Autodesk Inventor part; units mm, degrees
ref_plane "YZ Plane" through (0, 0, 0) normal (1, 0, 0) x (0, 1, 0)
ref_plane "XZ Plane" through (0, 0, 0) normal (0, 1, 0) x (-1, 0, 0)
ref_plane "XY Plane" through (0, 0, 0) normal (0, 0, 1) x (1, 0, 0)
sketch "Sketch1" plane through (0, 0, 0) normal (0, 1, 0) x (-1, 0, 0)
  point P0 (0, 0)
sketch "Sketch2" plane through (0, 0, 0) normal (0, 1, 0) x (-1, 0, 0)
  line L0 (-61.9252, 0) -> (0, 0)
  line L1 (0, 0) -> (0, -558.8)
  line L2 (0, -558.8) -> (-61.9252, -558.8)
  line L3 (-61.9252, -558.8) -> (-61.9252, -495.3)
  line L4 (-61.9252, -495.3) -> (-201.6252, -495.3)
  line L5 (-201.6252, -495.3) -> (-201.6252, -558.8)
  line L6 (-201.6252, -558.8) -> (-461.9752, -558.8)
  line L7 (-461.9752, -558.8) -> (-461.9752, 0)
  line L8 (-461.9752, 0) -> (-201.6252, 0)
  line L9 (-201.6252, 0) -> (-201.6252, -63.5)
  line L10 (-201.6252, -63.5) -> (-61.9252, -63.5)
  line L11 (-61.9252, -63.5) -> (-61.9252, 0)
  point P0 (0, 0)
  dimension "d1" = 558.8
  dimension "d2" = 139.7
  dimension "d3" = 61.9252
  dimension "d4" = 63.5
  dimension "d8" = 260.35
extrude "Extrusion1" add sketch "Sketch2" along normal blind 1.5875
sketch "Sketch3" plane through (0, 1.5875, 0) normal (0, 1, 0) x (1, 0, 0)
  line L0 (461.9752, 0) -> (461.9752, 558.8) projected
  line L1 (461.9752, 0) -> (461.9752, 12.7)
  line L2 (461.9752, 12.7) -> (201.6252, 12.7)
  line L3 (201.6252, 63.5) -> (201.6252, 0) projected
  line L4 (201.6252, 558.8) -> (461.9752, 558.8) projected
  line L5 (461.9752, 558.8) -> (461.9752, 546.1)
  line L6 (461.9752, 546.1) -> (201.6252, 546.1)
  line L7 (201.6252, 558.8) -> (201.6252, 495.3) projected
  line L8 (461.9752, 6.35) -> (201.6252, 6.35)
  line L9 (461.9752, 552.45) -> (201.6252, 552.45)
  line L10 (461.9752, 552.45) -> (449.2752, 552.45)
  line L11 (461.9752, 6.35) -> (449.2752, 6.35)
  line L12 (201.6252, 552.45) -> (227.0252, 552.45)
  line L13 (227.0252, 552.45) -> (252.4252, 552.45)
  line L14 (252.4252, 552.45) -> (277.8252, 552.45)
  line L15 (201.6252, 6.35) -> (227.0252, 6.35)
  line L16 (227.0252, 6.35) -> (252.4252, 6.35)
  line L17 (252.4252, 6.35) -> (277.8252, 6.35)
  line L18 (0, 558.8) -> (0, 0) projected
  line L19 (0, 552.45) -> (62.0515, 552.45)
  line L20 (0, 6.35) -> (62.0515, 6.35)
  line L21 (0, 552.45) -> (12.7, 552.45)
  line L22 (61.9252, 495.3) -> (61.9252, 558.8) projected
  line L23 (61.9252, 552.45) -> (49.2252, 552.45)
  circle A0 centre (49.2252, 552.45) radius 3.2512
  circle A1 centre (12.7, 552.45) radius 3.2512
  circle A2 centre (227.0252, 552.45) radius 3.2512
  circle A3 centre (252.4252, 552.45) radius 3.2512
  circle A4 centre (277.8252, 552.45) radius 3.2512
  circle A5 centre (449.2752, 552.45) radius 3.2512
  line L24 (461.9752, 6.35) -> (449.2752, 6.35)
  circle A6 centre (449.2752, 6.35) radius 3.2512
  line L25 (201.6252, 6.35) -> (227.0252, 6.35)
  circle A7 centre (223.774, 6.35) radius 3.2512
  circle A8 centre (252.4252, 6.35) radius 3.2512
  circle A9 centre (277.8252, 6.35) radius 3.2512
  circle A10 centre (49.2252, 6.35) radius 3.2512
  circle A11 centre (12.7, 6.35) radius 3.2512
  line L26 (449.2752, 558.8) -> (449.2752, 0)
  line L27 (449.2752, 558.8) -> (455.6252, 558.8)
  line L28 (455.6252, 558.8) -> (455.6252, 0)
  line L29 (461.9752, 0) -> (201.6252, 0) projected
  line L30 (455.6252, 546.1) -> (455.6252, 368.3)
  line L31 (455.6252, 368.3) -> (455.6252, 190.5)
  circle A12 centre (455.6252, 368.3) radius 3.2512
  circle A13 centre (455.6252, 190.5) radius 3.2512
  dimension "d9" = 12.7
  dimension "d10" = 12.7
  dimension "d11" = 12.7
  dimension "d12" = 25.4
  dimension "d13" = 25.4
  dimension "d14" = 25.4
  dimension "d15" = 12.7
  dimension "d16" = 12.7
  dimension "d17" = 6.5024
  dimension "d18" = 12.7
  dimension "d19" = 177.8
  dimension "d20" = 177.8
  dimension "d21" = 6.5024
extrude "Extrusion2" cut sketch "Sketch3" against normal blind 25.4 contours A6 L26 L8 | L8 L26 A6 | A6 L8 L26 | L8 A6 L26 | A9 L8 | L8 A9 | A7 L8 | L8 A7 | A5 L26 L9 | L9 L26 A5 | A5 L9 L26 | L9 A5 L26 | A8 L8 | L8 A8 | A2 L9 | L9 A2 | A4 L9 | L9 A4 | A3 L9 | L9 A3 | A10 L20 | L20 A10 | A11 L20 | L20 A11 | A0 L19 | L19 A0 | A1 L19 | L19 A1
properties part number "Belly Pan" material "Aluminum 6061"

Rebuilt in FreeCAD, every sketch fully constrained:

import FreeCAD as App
import Part
import Sketcher
Q = App.Units.Quantity

doc = App.newDocument("Part")
body = doc.addObject("PartDesign::Body", "Body")

# Sketch on XZ plane
sketch1 = body.newObject("Sketcher::SketchObject", "Sketch")
sketch1.AttachmentSupport = (doc.getObject("XZ_Plane"), [""])
sketch1.MapMode = "FlatFace"
sketch1.addGeometry(Part.LineSegment(App.Vector(0, 0, 0), App.Vector(61.9252, 0, 0)), False)
sketch1.addGeometry(Part.LineSegment(App.Vector(61.9252, 0, 0), App.Vector(61.9252, -63.5, 0)), False)
sketch1.addGeometry(Part.LineSegment(App.Vector(61.9252, -63.5, 0), App.Vector(201.6252, -63.5, 0)), False)
sketch1.addGeometry(Part.LineSegment(App.Vector(201.6252, -63.5, 0), App.Vector(201.6252, 0, 0)), False)
sketch1.addGeometry(Part.LineSegment(App.Vector(201.6252, 0, 0), App.Vector(461.9752, 0, 0)), False)
sketch1.addGeometry(Part.LineSegment(App.Vector(461.9752, 0, 0), App.Vector(461.9752, -558.8, 0)), False)
sketch1.addGeometry(Part.LineSegment(App.Vector(461.9752, -558.8, 0), App.Vector(201.6252, -558.8, 0)), False)
sketch1.addGeometry(Part.LineSegment(App.Vector(201.6252, -558.8, 0), App.Vector(201.6252, -495.3, 0)), False)
sketch1.addGeometry(Part.LineSegment(App.Vector(201.6252, -495.3, 0), App.Vector(61.9252, -495.3, 0)), False)
sketch1.addGeometry(Part.LineSegment(App.Vector(61.9252, -495.3, 0), App.Vector(61.9252, -558.8, 0)), False)
sketch1.addGeometry(Part.LineSegment(App.Vector(61.9252, -558.8, 0), App.Vector(0, -558.8, 0)), False)
sketch1.addGeometry(Part.LineSegment(App.Vector(0, -558.8, 0), App.Vector(0, 0, 0)), False)
sketch1.addConstraint(Sketcher.Constraint("Coincident", 0, 2, 1, 1))
sketch1.addConstraint(Sketcher.Constraint("Coincident", 1, 2, 2, 1))
sketch1.addConstraint(Sketcher.Constraint("Coincident", 2, 2, 3, 1))
sketch1.addConstraint(Sketcher.Constraint("Coincident", 3, 2, 4, 1))
sketch1.addConstraint(Sketcher.Constraint("Coincident", 4, 2, 5, 1))
sketch1.addConstraint(Sketcher.Constraint("Coincident", 5, 2, 6, 1))
sketch1.addConstraint(Sketcher.Constraint("Coincident", 6, 2, 7, 1))
sketch1.addConstraint(Sketcher.Constraint("Coincident", 7, 2, 8, 1))
sketch1.addConstraint(Sketcher.Constraint("Coincident", 8, 2, 9, 1))
sketch1.addConstraint(Sketcher.Constraint("Coincident", 9, 2, 10, 1))
sketch1.addConstraint(Sketcher.Constraint("Coincident", 10, 2, 11, 1))
sketch1.addConstraint(Sketcher.Constraint("Coincident", 11, 2, 0, 1))
sketch1.addConstraint(Sketcher.Constraint("Horizontal", 0))
sketch1.addConstraint(Sketcher.Constraint("Vertical", 1))
sketch1.addConstraint(Sketcher.Constraint("Horizontal", 2))
sketch1.addConstraint(Sketcher.Constraint("Vertical", 3))
sketch1.addConstraint(Sketcher.Constraint("Horizontal", 4))
sketch1.addConstraint(Sketcher.Constraint("Vertical", 5))
sketch1.addConstraint(Sketcher.Constraint("Horizontal", 6))
sketch1.addConstraint(Sketcher.Constraint("Vertical", 7))
sketch1.addConstraint(Sketcher.Constraint("Horizontal", 8))
sketch1.addConstraint(Sketcher.Constraint("Vertical", 9))
sketch1.addConstraint(Sketcher.Constraint("Horizontal", 10))
sketch1.addConstraint(Sketcher.Constraint("Vertical", 11))
sketch1.addConstraint(Sketcher.Constraint("Coincident", 11, 2, -1, 1))
sketch1.addConstraint(Sketcher.Constraint("PointOnObject", 3, 2, -1))
sketch1.addConstraint(Sketcher.Constraint("Horizontal", 6, 2, 9, 2))
sketch1.addConstraint(Sketcher.Constraint("Vertical", 3, 2, 6, 2))
sketch1.addConstraint(Sketcher.Constraint("Vertical", 1, 2, 8, 2))
sketch1.addConstraint(Sketcher.Constraint("Equal", 3, 7))
sketch1.addConstraint(Sketcher.Constraint("DistanceY", 5, 2, 5, 1, Q("22 in")))
sketch1.addConstraint(Sketcher.Constraint("DistanceX", 2, 1, 2, 2, Q("5.5 in")))
sketch1.addConstraint(Sketcher.Constraint("DistanceY", 1, 2, 1, 1, Q("2.5 in")))
sketch1.addConstraint(Sketcher.Constraint("DistanceX", 4, 1, 4, 2, Q("10.25 in")))
sketch1.addConstraint(Sketcher.Constraint("DistanceX", 0, 1, 0, 2, Q("2.438 in")))
pad1 = body.newObject("PartDesign::Pad", "Pad")
pad1.Profile = sketch1
pad1.Length = Q("0.0625 in")
pad1.Reversed = True

# Sketch on XZ plane
sketch2 = body.newObject("Sketcher::SketchObject", "Sketch001")
sketch2.AttachmentSupport = (doc.getObject("XZ_Plane"), [""])
sketch2.MapMode = "FlatFace"
sketch2.AttachmentOffset = App.Placement(App.Vector(0, 0, -0.0625 * 25.4), App.Rotation())
sketch2.addGeometry(Part.Circle(App.Vector(449.2752, -6.35, 0), App.Vector(0, 0, 1), 3.2512), False)
sketch2.addGeometry(Part.Circle(App.Vector(277.8252, -6.35, 0), App.Vector(0, 0, 1), 3.2512), False)
sketch2.addGeometry(Part.Circle(App.Vector(223.774, -6.35, 0), App.Vector(0, 0, 1), 3.2512), False)
sketch2.addGeometry(Part.Circle(App.Vector(449.2752, -552.45, 0), App.Vector(0, 0, 1), 3.2512), False)
sketch2.addGeometry(Part.Circle(App.Vector(252.4252, -6.35, 0), App.Vector(0, 0, 1), 3.2512), False)
sketch2.addGeometry(Part.Circle(App.Vector(227.0252, -552.45, 0), App.Vector(0, 0, 1), 3.2512), False)
sketch2.addGeometry(Part.Circle(App.Vector(277.8252, -552.45, 0), App.Vector(0, 0, 1), 3.2512), False)
sketch2.addGeometry(Part.Circle(App.Vector(252.4252, -552.45, 0), App.Vector(0, 0, 1), 3.2512), False)
sketch2.addGeometry(Part.Circle(App.Vector(49.2252, -6.35, 0), App.Vector(0, 0, 1), 3.2512), False)
sketch2.addGeometry(Part.Circle(App.Vector(12.7, -6.35, 0), App.Vector(0, 0, 1), 3.2512), False)
sketch2.addGeometry(Part.Circle(App.Vector(49.2252, -552.45, 0), App.Vector(0, 0, 1), 3.2512), False)
sketch2.addGeometry(Part.Circle(App.Vector(12.7, -552.45, 0), App.Vector(0, 0, 1), 3.2512), False)
sketch2.addConstraint(Sketcher.Constraint("Equal", 0, 1))
sketch2.addConstraint(Sketcher.Constraint("Equal", 1, 2))
sketch2.addConstraint(Sketcher.Constraint("Equal", 2, 3))
sketch2.addConstraint(Sketcher.Constraint("Equal", 3, 4))
sketch2.addConstraint(Sketcher.Constraint("Equal", 4, 5))
sketch2.addConstraint(Sketcher.Constraint("Equal", 5, 6))
sketch2.addConstraint(Sketcher.Constraint("Equal", 6, 7))
sketch2.addConstraint(Sketcher.Constraint("Equal", 7, 8))
sketch2.addConstraint(Sketcher.Constraint("Equal", 8, 9))
sketch2.addConstraint(Sketcher.Constraint("Equal", 9, 10))
sketch2.addConstraint(Sketcher.Constraint("Equal", 10, 11))
sketch2.addConstraint(Sketcher.Constraint("Horizontal", 0, 3, 1, 3))
sketch2.addConstraint(Sketcher.Constraint("Horizontal", 1, 3, 2, 3))
sketch2.addConstraint(Sketcher.Constraint("Horizontal", 2, 3, 4, 3))
sketch2.addConstraint(Sketcher.Constraint("Horizontal", 3, 3, 5, 3))
sketch2.addConstraint(Sketcher.Constraint("Horizontal", 5, 3, 6, 3))
sketch2.addConstraint(Sketcher.Constraint("Horizontal", 6, 3, 7, 3))
sketch2.addConstraint(Sketcher.Constraint("Horizontal", 4, 3, 8, 3))
sketch2.addConstraint(Sketcher.Constraint("Horizontal", 8, 3, 9, 3))
sketch2.addConstraint(Sketcher.Constraint("Horizontal", 7, 3, 10, 3))
sketch2.addConstraint(Sketcher.Constraint("Horizontal", 10, 3, 11, 3))
sketch2.addConstraint(Sketcher.Constraint("Vertical", 0, 3, 3, 3))
sketch2.addConstraint(Sketcher.Constraint("Vertical", 1, 3, 6, 3))
sketch2.addConstraint(Sketcher.Constraint("Vertical", 4, 3, 7, 3))
sketch2.addConstraint(Sketcher.Constraint("Vertical", 8, 3, 10, 3))
sketch2.addConstraint(Sketcher.Constraint("Vertical", 9, 3, 11, 3))
sketch2.addConstraint(Sketcher.Constraint("Diameter", 0, Q("0.256 in")))
sketch2.addConstraint(Sketcher.Constraint("DistanceX", 4, 3, 1, 3, Q("1 in")))
sketch2.addConstraint(Sketcher.Constraint("DistanceX", 5, 3, 4, 3, Q("1 in")))
sketch2.addConstraint(Sketcher.Constraint("DistanceX", 8, 3, 5, 3, Q("7 in")))
sketch2.addConstraint(Sketcher.Constraint("DistanceX", -1, 1, 9, 3, Q("0.5 in")))
sketch2.addConstraint(Sketcher.Constraint("DistanceY", 3, 3, 0, 3, Q("21.5 in")))
sketch2.addConstraint(Sketcher.Constraint("DistanceY", 0, 3, -1, 1, Q("0.25 in")))
sketch2.addConstraint(Sketcher.Constraint("DistanceX", -1, 1, 2, 3, Q("8.81 in")))
sketch2.addConstraint(Sketcher.Constraint("DistanceX", 1, 3, 0, 3, Q("6.75 in")))
sketch2.addConstraint(Sketcher.Constraint("DistanceX", -1, 1, 0, 3, Q("17.688 in")))
pocket1 = body.newObject("PartDesign::Pocket", "Pocket")
pocket1.Profile = sketch2
pocket1.Length = Q("1 in")
pocket1.Reversed = True

doc.recompute()
